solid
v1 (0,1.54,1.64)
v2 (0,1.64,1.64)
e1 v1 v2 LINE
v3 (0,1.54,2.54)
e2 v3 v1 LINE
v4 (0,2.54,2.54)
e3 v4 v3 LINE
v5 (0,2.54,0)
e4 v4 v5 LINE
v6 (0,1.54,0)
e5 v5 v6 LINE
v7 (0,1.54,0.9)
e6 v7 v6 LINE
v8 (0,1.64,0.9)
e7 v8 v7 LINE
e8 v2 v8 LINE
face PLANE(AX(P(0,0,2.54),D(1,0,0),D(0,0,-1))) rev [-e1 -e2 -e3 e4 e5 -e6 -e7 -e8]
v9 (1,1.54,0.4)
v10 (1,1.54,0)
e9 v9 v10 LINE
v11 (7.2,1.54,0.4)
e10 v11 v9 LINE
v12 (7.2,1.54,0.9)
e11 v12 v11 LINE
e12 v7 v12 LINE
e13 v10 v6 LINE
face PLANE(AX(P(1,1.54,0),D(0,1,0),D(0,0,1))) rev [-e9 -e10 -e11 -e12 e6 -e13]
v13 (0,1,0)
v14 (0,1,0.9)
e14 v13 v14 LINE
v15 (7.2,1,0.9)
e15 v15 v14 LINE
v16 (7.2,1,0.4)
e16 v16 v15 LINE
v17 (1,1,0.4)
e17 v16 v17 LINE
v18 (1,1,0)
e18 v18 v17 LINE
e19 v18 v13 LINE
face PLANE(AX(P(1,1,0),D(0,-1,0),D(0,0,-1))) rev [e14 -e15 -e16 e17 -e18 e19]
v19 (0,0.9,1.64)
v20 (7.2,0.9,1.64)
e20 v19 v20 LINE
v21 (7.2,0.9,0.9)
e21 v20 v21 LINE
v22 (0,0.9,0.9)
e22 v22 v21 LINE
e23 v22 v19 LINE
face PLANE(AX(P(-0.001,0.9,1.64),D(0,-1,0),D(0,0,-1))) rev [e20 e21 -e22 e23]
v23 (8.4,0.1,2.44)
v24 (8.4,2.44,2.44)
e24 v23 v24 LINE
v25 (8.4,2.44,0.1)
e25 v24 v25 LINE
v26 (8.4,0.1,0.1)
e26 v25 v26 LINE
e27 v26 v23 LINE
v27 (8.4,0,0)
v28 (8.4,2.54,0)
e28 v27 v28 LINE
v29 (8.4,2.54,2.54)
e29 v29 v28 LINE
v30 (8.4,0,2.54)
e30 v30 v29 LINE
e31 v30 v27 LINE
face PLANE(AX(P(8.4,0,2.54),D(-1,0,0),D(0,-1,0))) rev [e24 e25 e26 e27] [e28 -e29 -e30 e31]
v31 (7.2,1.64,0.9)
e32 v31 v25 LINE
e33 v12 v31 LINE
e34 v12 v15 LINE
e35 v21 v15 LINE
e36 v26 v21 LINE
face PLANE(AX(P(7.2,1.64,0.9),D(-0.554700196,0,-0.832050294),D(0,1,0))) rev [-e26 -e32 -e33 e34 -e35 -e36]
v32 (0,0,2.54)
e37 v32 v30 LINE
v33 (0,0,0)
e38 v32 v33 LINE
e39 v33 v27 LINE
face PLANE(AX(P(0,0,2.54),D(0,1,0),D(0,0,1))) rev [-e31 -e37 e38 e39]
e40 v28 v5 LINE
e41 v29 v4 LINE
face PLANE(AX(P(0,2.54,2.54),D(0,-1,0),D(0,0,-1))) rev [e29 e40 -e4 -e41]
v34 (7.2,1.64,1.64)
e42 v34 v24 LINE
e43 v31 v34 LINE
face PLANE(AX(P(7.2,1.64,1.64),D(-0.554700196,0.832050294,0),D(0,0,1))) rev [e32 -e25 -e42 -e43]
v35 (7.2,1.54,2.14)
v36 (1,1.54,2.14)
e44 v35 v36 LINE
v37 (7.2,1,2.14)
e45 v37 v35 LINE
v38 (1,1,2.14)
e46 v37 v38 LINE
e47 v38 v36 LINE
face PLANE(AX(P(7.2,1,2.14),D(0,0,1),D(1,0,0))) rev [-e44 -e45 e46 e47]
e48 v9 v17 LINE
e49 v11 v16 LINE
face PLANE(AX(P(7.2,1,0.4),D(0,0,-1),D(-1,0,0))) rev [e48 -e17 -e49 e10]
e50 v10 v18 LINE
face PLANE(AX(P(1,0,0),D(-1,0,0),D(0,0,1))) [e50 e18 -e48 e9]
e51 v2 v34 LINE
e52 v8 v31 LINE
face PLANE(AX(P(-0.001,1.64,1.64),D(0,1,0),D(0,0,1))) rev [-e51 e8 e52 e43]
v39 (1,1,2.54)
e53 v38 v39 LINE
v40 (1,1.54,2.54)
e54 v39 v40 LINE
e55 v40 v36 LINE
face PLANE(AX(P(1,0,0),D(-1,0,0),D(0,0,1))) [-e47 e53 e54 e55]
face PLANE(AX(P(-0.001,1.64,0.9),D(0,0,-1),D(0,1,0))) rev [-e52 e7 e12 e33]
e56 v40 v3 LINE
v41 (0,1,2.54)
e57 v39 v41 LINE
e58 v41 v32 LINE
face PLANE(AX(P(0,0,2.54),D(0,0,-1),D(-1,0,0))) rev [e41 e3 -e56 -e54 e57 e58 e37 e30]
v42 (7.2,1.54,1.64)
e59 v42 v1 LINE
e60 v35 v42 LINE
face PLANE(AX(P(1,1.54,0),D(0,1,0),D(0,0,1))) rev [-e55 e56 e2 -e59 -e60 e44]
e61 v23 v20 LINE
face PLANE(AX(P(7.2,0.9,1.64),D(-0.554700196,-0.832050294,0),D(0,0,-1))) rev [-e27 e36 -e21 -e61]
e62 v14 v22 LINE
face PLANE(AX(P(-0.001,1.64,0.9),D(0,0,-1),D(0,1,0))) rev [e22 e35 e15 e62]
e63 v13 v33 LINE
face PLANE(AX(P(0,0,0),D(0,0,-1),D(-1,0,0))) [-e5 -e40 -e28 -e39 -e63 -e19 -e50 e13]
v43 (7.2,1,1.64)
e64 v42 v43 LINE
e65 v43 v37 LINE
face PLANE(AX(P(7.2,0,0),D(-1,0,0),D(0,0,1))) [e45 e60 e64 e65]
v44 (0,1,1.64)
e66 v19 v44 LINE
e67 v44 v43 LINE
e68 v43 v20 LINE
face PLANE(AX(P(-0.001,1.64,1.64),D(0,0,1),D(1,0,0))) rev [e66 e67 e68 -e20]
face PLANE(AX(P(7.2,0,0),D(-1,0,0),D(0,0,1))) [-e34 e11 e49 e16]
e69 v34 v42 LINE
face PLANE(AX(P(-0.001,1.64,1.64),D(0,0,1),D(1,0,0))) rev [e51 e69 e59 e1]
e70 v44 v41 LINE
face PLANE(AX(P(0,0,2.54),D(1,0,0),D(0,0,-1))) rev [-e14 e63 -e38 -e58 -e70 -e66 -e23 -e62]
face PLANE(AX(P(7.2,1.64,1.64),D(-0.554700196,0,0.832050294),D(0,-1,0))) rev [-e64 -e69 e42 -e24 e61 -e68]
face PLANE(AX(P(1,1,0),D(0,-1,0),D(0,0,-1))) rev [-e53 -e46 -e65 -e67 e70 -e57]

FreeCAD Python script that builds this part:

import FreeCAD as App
import Part
import Sketcher

V = App.Vector
Q = App.Units.Quantity


def edges_at(feature, points):
    """Names of the edges that pass closest to the given points."""
    edges = feature.Shape.Edges
    near = lambda p: min(range(len(edges)), key=lambda i: edges[i].distToShape(Part.Vertex(*p))[0])
    return sorted({f"Edge{near(p) + 1}" for p in points})


def add_polygon(sketch, points):
    """Adds a closed chain of lines whose ends are joined by coincident constraints."""
    first, n = sketch.GeometryCount, len(points)
    for a, b in zip(points, points[1:] + points[:1]):
        sketch.addGeometry(Part.LineSegment(App.Vector(*a, 0), App.Vector(*b, 0)), False)
    for i in range(n):
        sketch.addConstraint(Sketcher.Constraint("Coincident", first + i, 2, first + (i + 1) % n, 1))

doc = App.newDocument("Part")
params = doc.addObject("Spreadsheet::Sheet", "Params")
for row, (alias, value) in enumerate([
    ("sketch1_width", "8.4 mm"),
    ("sketch1_height", "2.54 mm"),
    ("pad1_length", "2.54 mm"),
    ("sketch2_width", "0.74 mm"),
    ("chamfer_size", "0.8 mm"),
    ("chamfer_size2", "1.2 mm"),
    ("sketch3_width", "0.54 mm"),
    ("sketch3_height", "2.54 mm"),
    ("pocket2_length", "1 mm"),
    ("sketch4_width", "0.54 mm"),
    ("sketch4_height", "1.74 mm"),
    ("pocket3_length", "6.2 mm"),
], start=1):
    params.set(f"A{row}", alias)
    params.set(f"B{row}", "=" + value)
    params.setAlias(f"B{row}", alias)

body = doc.addObject("PartDesign::Body", "Body")

sketch1 = body.newObject("Sketcher::SketchObject", "Sketch")
sketch1.AttachmentSupport = (doc.getObject("XY_Plane"), [""])
sketch1.MapMode = "FlatFace"
add_polygon(sketch1, [(0, 2.54), (0, 0), (8.4, 0), (8.4, 2.54)])
sketch1.addConstraint([
    Sketcher.Constraint("Vertical", 0),
    Sketcher.Constraint("Horizontal", 1),
    Sketcher.Constraint("Vertical", 2),
    Sketcher.Constraint("Horizontal", 3),
    Sketcher.Constraint("Coincident", 0, 2, -1, 1),
    Sketcher.Constraint("DistanceX", 1, 1, 1, 2, Q("8.4 mm")),
    Sketcher.Constraint("DistanceY", 0, 2, 0, 1, Q("2.54 mm")),
])
sketch1.setExpression("Constraints[9]", "Params.sketch1_width")
sketch1.setExpression("Constraints[10]", "Params.sketch1_height")
pad1 = body.newObject("PartDesign::Pad", "Pad")
pad1.Profile = sketch1
pad1.setExpression("Length", "Params.pad1_length")

sketch2 = body.newObject("Sketcher::SketchObject", "Sketch001")
sketch2.AttachmentSupport = (doc.getObject("YZ_Plane"), [""])
sketch2.MapMode = "FlatFace"
sketch2.AttachmentOffset = App.Placement(V(0, 0, 8.4), App.Rotation())
add_polygon(sketch2, [(1.64, 1.64), (0.9, 1.64), (0.9, 0.9), (1.64, 0.9)])
sketch2.addConstraint([
    Sketcher.Constraint("Horizontal", 0),
    Sketcher.Constraint("Vertical", 1),
    Sketcher.Constraint("Horizontal", 2),
    Sketcher.Constraint("Vertical", 3),
    Sketcher.Constraint("Equal", 2, 1),
    Sketcher.Constraint("DistanceX", 0, 2, 0, 1, Q("0.74 mm")),
    Sketcher.Constraint("DistanceX", -1, 1, 0, 2, Q("0.9 mm")),
    Sketcher.Constraint("DistanceY", -1, 1, 1, 2, Q("0.9 mm")),
])
sketch2.setExpression("Constraints[9]", "Params.sketch2_width")
pocket1 = body.newObject("PartDesign::Pocket", "Pocket")
pocket1.Profile = sketch2
pocket1.Type = "UpToFirst"
doc.recompute()

chamfer = body.newObject("PartDesign::Chamfer", "Chamfer")
chamfer.Base = (pocket1, edges_at(pocket1, [
    (8.4, 1.27, 1.64),
    (8.4, 0.9, 1.27),
    (8.4, 1.27, 0.9),
    (8.4, 1.64, 1.27),
]))
chamfer.ChamferType = "Two distances"
chamfer.setExpression("Size", "Params.chamfer_size")
chamfer.setExpression("Size2", "Params.chamfer_size2")
chamfer.FlipDirection = True

sketch3 = body.newObject("Sketcher::SketchObject", "Sketch002")
sketch3.AttachmentSupport = (doc.getObject("YZ_Plane"), [""])
sketch3.MapMode = "FlatFace"
add_polygon(sketch3, [(1.54, 0), (1, 0), (1, 2.54), (1.54, 2.54)])
sketch3.addConstraint([
    Sketcher.Constraint("Horizontal", 0),
    Sketcher.Constraint("Vertical", 1),
    Sketcher.Constraint("Horizontal", 2),
    Sketcher.Constraint("Vertical", 3),
    Sketcher.Constraint("PointOnObject", 0, 2, -1),
    Sketcher.Constraint("DistanceX", -1, 1, 0, 2, Q("1 mm")),
    Sketcher.Constraint("DistanceX", 0, 2, 0, 1, Q("0.54 mm")),
    Sketcher.Constraint("DistanceY", 1, 1, 1, 2, Q("2.54 mm")),
])
sketch3.setExpression("Constraints[10]", "Params.sketch3_width")
sketch3.setExpression("Constraints[11]", "Params.sketch3_height")
pocket2 = body.newObject("PartDesign::Pocket", "Pocket001")
pocket2.Profile = sketch3
pocket2.setExpression("Length", "Params.pocket2_length")
pocket2.Reversed = True

sketch4 = body.newObject("Sketcher::SketchObject", "Sketch003")
sketch4.AttachmentSupport = (doc.getObject("YZ_Plane"), [""])
sketch4.MapMode = "FlatFace"
sketch4.AttachmentOffset = App.Placement(V(0, 0, 7.2), App.Rotation())
add_polygon(sketch4, [(1.54, 0.4), (1, 0.4), (1, 2.14), (1.54, 2.14)])
sketch4.addConstraint([
    Sketcher.Constraint("Horizontal", 0),
    Sketcher.Constraint("Vertical", 1),
    Sketcher.Constraint("Horizontal", 2),
    Sketcher.Constraint("Vertical", 3),
    Sketcher.Constraint("DistanceX", -1, 1, 0, 2, Q("1 mm")),
    Sketcher.Constraint("DistanceX", 0, 2, 0, 1, Q("0.54 mm")),
    Sketcher.Constraint("DistanceY", 1, 1, 1, 2, Q("1.74 mm")),
    Sketcher.Constraint("DistanceY", -1, 1, 0, 2, Q("0.4 mm")),
])
sketch4.setExpression("Constraints[9]", "Params.sketch4_width")
sketch4.setExpression("Constraints[10]", "Params.sketch4_height")
pocket3 = body.newObject("PartDesign::Pocket", "Pocket002")
pocket3.Profile = sketch4
pocket3.setExpression("Length", "Params.pocket3_length")

doc.recompute()
